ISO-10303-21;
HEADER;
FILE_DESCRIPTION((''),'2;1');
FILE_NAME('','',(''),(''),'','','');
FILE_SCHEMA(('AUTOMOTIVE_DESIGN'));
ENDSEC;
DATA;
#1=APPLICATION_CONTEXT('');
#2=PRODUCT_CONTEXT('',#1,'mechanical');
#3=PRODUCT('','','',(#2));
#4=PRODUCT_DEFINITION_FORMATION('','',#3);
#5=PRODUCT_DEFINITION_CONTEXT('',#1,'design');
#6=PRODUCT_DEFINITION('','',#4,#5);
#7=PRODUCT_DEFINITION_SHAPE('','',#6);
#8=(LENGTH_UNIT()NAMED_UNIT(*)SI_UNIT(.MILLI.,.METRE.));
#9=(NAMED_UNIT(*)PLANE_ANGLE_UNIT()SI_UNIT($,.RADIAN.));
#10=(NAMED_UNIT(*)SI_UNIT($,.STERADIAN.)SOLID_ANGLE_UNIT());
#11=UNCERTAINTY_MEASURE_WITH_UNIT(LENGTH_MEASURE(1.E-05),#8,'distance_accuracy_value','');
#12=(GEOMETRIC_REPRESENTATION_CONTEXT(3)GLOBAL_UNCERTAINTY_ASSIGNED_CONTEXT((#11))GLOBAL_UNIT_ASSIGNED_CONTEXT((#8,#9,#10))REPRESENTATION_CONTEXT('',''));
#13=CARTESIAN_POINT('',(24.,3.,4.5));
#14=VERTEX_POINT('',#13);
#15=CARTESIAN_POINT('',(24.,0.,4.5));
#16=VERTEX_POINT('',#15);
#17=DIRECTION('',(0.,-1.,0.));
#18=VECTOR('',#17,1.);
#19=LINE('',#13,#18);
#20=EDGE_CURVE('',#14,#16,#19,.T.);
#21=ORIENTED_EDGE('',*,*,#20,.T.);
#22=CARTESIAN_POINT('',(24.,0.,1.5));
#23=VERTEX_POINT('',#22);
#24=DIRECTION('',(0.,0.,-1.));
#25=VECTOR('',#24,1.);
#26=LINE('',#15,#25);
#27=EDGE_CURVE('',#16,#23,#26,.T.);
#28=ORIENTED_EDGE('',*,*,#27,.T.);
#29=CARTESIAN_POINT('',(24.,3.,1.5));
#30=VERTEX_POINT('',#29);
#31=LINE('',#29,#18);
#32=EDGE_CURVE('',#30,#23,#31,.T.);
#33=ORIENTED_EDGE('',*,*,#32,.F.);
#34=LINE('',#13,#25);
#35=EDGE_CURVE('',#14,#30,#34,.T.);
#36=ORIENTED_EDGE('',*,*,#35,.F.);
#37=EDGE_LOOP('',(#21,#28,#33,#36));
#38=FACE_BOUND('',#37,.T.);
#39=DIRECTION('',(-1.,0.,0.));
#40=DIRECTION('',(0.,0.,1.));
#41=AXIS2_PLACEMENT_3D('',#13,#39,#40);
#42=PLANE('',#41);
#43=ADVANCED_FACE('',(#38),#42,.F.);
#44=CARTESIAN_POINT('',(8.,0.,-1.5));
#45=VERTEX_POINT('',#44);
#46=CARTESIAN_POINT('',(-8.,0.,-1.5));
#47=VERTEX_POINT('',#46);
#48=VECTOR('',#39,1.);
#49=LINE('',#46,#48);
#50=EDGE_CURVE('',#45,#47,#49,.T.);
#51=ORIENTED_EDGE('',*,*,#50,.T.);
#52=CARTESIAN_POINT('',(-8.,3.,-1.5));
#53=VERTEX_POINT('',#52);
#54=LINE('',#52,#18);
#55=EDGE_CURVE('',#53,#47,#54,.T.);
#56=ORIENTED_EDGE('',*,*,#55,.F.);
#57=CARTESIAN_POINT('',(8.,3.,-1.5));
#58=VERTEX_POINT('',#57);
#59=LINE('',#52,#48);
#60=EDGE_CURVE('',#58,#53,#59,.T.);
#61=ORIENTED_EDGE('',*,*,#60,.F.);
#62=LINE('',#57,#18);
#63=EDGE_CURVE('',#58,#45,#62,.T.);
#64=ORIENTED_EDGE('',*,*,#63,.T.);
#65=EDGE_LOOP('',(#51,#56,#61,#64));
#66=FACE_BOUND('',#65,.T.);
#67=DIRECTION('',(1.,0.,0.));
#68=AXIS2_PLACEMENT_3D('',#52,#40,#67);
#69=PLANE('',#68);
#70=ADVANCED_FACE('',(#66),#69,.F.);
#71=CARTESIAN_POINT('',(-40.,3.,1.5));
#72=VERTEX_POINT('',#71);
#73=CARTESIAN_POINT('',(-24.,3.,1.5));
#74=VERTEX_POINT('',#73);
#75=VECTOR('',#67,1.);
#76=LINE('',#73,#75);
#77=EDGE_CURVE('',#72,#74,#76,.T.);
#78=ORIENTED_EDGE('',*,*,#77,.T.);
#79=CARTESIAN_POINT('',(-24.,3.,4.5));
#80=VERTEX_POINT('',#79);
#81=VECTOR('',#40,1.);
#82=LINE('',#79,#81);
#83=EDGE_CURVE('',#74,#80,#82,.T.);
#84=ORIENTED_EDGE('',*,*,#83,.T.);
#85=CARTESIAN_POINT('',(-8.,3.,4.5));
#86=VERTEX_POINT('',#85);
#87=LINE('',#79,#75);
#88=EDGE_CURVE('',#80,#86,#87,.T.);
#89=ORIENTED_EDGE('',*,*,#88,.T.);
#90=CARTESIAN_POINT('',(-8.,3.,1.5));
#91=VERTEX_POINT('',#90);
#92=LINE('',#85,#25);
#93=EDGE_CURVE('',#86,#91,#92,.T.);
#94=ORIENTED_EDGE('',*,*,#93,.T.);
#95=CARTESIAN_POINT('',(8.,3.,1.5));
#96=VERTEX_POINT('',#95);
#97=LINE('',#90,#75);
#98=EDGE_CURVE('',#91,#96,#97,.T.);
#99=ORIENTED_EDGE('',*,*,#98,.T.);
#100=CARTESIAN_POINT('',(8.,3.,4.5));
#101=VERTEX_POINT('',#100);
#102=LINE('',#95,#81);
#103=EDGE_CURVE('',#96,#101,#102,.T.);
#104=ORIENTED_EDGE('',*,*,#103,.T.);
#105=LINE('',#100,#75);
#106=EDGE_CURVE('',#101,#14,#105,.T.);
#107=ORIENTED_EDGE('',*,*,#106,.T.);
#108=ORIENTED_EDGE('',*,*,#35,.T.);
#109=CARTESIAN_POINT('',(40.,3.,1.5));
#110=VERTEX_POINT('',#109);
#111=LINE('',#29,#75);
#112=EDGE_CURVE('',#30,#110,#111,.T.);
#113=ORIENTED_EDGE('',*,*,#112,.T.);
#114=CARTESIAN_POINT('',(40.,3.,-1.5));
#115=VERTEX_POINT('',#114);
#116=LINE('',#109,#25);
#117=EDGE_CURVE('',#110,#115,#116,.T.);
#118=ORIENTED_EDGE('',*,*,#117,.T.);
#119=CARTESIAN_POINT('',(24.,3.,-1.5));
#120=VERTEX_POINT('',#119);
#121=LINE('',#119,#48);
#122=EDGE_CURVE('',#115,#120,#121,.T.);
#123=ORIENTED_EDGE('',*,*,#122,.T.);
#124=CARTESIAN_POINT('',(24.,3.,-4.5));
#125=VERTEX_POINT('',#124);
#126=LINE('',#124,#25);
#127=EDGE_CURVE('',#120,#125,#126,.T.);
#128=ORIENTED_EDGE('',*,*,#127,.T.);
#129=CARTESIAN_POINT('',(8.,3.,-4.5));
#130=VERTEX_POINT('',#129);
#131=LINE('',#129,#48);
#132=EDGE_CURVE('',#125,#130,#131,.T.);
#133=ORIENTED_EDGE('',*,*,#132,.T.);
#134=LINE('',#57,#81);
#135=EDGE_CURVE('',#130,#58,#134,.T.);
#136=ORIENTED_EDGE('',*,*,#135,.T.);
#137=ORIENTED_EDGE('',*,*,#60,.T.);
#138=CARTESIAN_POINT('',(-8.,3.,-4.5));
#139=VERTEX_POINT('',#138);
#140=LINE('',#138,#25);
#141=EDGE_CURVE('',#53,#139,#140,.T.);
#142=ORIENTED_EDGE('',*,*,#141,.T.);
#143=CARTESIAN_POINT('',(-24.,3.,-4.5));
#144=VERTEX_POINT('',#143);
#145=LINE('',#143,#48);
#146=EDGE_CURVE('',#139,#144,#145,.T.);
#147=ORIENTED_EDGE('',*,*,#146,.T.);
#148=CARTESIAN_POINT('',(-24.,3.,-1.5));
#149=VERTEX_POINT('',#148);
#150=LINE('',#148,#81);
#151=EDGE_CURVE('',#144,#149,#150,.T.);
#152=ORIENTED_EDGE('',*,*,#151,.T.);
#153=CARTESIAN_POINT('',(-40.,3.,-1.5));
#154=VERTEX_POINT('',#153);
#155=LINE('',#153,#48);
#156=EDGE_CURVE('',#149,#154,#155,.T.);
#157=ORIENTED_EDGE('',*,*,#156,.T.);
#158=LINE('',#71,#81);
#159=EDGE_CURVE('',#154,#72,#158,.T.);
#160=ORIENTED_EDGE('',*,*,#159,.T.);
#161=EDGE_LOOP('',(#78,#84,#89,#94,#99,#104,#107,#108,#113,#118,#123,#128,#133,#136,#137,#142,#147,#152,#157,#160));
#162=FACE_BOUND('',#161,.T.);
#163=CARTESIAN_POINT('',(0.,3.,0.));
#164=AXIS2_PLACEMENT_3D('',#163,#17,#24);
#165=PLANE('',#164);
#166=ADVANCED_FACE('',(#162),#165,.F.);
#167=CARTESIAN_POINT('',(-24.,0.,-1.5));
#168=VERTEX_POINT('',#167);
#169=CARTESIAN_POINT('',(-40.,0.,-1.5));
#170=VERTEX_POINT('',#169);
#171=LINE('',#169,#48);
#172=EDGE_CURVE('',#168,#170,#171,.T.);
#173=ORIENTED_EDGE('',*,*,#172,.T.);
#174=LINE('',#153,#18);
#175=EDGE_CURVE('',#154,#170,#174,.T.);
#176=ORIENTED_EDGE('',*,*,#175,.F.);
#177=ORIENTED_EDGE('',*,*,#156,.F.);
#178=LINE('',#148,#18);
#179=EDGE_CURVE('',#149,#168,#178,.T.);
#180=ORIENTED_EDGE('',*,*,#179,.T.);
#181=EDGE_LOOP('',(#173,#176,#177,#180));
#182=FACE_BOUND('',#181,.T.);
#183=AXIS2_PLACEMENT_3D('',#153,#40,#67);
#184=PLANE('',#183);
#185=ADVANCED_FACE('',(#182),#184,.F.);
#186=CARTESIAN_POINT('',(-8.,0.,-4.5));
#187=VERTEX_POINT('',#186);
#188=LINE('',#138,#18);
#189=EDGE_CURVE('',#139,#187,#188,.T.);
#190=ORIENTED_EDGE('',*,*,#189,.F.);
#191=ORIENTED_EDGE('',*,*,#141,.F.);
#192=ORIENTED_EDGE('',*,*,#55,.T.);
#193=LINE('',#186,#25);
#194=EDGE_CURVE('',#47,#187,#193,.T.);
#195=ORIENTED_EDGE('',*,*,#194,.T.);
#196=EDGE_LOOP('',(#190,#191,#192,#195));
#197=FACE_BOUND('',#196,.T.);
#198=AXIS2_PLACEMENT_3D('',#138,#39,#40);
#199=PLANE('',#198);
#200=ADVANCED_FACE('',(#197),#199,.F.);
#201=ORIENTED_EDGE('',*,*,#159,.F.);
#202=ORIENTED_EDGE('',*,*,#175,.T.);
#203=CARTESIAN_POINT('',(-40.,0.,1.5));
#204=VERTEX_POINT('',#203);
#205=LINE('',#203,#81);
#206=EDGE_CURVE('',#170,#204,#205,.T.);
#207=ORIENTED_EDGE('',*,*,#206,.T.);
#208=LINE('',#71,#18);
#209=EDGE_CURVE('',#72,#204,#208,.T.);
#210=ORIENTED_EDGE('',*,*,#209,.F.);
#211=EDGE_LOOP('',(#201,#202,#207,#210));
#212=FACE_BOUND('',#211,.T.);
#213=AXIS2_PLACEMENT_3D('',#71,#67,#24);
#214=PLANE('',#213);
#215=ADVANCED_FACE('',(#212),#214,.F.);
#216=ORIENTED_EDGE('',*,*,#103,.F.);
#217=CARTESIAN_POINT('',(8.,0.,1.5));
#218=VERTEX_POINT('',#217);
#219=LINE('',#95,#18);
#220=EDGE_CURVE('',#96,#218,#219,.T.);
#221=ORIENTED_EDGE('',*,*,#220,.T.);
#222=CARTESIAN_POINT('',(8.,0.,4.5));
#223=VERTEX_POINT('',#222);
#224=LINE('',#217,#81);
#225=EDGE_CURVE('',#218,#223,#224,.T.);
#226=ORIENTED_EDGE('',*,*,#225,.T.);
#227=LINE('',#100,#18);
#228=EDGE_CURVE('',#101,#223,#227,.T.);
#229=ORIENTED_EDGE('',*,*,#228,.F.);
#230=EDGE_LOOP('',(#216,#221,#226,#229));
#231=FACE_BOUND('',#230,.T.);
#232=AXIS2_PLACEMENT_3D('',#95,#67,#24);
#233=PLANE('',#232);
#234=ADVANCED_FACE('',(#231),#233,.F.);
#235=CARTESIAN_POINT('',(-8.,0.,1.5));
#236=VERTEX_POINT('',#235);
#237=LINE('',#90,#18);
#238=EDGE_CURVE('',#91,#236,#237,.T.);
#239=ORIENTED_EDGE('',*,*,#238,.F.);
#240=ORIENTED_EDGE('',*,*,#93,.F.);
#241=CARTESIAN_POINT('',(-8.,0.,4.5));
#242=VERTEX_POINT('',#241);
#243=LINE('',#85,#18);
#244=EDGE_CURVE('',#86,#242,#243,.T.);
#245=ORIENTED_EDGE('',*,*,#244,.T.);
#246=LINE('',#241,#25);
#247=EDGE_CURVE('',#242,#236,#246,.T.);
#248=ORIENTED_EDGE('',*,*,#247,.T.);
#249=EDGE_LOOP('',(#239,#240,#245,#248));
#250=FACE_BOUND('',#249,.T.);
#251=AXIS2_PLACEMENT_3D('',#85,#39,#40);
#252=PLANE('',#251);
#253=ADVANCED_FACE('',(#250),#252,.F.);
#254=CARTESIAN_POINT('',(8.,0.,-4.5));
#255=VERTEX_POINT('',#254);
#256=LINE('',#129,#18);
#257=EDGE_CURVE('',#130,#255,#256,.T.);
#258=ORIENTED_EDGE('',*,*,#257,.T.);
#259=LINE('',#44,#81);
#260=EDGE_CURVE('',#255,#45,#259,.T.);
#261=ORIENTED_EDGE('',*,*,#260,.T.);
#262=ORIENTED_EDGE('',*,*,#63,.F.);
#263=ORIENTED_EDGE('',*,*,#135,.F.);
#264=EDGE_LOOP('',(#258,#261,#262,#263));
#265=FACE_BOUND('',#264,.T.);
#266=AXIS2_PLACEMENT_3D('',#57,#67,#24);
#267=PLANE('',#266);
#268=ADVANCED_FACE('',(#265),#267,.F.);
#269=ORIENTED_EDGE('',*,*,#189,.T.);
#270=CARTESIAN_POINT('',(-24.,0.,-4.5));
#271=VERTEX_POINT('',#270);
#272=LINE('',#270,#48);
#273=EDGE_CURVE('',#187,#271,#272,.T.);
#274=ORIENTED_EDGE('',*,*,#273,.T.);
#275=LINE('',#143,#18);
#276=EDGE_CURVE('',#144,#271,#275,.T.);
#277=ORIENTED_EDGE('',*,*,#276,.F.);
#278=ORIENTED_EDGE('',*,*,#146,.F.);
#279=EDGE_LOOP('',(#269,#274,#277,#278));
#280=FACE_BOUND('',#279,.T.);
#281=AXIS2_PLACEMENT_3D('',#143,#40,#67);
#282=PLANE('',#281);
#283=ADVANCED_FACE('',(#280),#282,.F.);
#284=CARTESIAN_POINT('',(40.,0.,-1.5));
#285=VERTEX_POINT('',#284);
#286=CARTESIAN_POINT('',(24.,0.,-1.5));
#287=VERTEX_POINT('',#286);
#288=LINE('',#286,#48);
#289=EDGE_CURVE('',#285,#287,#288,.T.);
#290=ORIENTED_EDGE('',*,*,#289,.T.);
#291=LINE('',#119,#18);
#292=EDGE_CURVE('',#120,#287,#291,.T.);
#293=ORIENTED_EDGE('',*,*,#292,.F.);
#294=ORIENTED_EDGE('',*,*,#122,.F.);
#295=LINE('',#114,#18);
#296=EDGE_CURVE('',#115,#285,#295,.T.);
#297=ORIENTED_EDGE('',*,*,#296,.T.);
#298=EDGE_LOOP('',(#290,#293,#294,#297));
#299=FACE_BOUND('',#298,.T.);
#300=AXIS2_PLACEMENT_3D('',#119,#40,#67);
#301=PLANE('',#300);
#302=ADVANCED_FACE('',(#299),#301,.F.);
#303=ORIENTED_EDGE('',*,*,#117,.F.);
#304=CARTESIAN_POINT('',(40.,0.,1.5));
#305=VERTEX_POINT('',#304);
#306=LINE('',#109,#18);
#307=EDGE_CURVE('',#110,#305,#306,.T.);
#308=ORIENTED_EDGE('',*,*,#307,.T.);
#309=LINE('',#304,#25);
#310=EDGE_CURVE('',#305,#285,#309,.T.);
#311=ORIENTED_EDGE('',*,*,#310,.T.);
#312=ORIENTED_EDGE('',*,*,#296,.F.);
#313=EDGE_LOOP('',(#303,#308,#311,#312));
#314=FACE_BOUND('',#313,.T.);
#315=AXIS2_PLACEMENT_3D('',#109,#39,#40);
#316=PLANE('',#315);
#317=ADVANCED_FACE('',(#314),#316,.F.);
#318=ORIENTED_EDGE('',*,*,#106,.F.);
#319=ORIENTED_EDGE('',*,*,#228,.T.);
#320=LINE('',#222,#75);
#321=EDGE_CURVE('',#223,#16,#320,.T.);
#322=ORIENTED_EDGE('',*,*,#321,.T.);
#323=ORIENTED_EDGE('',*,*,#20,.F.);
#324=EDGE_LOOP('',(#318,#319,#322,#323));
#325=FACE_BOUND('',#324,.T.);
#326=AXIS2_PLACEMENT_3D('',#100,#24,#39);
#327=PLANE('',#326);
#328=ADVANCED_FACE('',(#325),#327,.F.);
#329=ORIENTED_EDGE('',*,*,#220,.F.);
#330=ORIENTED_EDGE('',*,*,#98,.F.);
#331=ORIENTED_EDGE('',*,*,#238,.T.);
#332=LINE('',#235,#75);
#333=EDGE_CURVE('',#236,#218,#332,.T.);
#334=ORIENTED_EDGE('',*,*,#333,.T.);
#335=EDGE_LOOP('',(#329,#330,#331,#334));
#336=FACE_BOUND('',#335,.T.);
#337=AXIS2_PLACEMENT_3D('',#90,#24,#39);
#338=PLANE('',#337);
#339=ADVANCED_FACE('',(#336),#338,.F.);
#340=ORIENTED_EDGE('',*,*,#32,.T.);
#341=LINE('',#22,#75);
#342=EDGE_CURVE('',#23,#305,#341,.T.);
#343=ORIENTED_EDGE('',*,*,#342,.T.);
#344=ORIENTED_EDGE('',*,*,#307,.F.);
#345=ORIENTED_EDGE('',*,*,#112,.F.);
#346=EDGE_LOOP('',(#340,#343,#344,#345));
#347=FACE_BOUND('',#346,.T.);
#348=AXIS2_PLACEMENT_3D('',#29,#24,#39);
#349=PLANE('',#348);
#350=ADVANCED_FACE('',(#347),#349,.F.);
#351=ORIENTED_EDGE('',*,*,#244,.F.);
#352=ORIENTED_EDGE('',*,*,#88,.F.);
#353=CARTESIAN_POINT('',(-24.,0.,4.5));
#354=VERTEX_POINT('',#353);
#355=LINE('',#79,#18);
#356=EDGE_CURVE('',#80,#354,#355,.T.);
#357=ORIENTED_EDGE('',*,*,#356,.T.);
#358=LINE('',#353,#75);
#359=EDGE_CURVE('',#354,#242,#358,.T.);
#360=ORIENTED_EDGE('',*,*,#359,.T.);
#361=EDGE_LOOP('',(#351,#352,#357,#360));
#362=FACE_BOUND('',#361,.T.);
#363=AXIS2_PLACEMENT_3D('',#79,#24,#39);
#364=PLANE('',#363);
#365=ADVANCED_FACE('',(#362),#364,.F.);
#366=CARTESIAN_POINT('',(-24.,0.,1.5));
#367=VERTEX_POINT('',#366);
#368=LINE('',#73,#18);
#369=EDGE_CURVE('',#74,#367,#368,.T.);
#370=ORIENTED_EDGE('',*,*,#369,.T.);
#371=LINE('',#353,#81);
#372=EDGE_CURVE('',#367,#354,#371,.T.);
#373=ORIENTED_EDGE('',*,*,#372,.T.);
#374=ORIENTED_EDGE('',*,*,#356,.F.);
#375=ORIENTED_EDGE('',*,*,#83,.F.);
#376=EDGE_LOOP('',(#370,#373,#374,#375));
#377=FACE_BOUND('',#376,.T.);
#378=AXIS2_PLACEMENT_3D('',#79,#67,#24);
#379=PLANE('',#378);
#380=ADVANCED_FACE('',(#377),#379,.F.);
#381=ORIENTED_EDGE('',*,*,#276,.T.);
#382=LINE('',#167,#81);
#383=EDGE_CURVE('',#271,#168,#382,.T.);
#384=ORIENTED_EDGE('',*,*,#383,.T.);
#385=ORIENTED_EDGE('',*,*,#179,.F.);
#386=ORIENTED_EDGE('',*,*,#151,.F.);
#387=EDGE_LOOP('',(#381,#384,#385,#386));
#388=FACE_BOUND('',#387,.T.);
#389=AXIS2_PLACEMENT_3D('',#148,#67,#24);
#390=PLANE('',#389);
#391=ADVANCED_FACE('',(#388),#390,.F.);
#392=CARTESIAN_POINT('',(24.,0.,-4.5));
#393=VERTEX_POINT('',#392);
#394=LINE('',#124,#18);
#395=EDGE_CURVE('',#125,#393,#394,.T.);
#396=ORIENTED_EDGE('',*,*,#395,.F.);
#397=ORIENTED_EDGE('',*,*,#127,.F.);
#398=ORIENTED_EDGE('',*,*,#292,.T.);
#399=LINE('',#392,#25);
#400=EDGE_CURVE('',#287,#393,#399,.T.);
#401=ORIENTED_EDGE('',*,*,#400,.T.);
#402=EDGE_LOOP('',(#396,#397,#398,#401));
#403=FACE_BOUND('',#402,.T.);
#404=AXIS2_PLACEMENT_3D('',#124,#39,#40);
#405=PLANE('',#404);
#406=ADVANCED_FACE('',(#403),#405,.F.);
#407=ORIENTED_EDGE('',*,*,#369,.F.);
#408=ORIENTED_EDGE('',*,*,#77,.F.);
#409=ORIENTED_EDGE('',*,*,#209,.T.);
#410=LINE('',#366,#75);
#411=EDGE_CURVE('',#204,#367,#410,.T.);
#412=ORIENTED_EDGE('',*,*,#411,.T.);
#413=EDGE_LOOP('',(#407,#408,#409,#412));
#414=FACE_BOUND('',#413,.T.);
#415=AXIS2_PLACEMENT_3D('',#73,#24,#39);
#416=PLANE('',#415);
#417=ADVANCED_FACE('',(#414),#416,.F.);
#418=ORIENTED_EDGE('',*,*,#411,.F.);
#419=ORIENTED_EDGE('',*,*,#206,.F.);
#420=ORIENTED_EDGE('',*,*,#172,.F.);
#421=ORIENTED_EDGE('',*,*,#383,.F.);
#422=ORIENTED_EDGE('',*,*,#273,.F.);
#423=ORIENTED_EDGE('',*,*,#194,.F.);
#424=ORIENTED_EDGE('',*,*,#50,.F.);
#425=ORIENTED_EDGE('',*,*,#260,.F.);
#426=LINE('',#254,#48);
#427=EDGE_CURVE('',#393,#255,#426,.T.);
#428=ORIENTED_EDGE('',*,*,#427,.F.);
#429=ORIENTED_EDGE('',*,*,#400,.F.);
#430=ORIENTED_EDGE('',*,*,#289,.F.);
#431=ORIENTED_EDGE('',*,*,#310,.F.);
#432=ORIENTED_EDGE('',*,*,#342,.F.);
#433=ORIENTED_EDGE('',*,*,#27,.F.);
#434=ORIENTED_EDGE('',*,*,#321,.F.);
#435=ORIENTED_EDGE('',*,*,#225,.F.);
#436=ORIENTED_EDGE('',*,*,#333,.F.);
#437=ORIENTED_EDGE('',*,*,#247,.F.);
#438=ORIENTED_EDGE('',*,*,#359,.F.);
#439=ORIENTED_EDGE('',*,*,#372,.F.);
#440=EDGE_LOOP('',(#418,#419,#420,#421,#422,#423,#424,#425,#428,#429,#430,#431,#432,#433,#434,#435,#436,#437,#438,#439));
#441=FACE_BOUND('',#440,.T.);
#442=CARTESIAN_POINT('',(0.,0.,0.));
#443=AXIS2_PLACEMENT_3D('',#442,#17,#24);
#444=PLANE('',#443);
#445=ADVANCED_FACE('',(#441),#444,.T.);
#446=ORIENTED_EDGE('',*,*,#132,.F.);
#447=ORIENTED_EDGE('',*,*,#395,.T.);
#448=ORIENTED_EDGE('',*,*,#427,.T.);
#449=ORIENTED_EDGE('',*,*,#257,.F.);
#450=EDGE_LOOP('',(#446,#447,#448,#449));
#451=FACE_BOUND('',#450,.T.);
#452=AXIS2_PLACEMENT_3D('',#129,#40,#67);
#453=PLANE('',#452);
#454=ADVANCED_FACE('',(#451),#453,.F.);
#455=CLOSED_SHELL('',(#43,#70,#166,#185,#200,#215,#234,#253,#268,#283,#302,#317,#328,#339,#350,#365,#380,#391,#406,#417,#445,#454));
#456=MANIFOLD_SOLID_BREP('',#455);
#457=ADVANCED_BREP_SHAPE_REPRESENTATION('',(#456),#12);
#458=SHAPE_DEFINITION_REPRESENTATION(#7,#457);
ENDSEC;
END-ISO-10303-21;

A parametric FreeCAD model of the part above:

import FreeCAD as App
import Part
import Sketcher

V = App.Vector


def add_polygon(sketch, points):
    """Adds a closed chain of lines whose ends are joined by coincident constraints."""
    first, n = sketch.GeometryCount, len(points)
    for a, b in zip(points, points[1:] + points[:1]):
        sketch.addGeometry(Part.LineSegment(App.Vector(*a, 0), App.Vector(*b, 0)), False)
    for i in range(n):
        sketch.addConstraint(Sketcher.Constraint("Coincident", first + i, 2, first + (i + 1) % n, 1))

doc = App.newDocument("Part")
body = doc.addObject("PartDesign::Body", "Body")

# Sketch on XZ plane
sketch1 = body.newObject("Sketcher::SketchObject", "Sketch")
sketch1.AttachmentSupport = (doc.getObject("XZ_Plane"), [""])
sketch1.MapMode = "FlatFace"
add_polygon(sketch1, [(-24, 4.5), (-8, 4.5), (-8, 1.5), (8, 1.5), (8, 4.5), (24, 4.5), (24, 1.5), (40, 1.5), (40, -1.5), (24, -1.5), (24, -4.5), (8, -4.5), (8, -1.5), (-8, -1.5), (-8, -4.5), (-24, -4.5), (-24, -1.5), (-40, -1.5), (-40, 1.5), (-24, 1.5)])  # lines 0-19
sketch1.addConstraint(Sketcher.Constraint("Horizontal", 0))
sketch1.addConstraint(Sketcher.Constraint("Vertical", 1))
sketch1.addConstraint(Sketcher.Constraint("Horizontal", 2))
sketch1.addConstraint(Sketcher.Constraint("Vertical", 3))
sketch1.addConstraint(Sketcher.Constraint("Horizontal", 4))
sketch1.addConstraint(Sketcher.Constraint("Vertical", 5))
sketch1.addConstraint(Sketcher.Constraint("Horizontal", 6))
sketch1.addConstraint(Sketcher.Constraint("Vertical", 7))
sketch1.addConstraint(Sketcher.Constraint("Horizontal", 8))
sketch1.addConstraint(Sketcher.Constraint("Vertical", 9))
sketch1.addConstraint(Sketcher.Constraint("Horizontal", 10))
sketch1.addConstraint(Sketcher.Constraint("Vertical", 11))
sketch1.addConstraint(Sketcher.Constraint("Horizontal", 12))
sketch1.addConstraint(Sketcher.Constraint("Vertical", 13))
sketch1.addConstraint(Sketcher.Constraint("Horizontal", 14))
sketch1.addConstraint(Sketcher.Constraint("Vertical", 15))
sketch1.addConstraint(Sketcher.Constraint("Horizontal", 16))
sketch1.addConstraint(Sketcher.Constraint("Vertical", 17))
sketch1.addConstraint(Sketcher.Constraint("Horizontal", 18))
sketch1.addConstraint(Sketcher.Constraint("Vertical", 19))
sketch1.addConstraint(Sketcher.Constraint("Symmetric", 0, 2, 10, 2, -1, 1))
sketch1.addConstraint(Sketcher.Constraint("Symmetric", 2, 2, 12, 2, -1, 1))
sketch1.addConstraint(Sketcher.Constraint("Symmetric", 4, 2, 14, 2, -1, 1))
sketch1.addConstraint(Sketcher.Constraint("Symmetric", 6, 2, 16, 2, -1, 1))
sketch1.addConstraint(Sketcher.Constraint("Symmetric", 8, 2, 18, 2, -1, 1))
sketch1.addConstraint(Sketcher.Constraint("Symmetric", 0, 2, 3, 2, -2))
sketch1.addConstraint(Sketcher.Constraint("Symmetric", 8, 2, 15, 2, -2))
sketch1.addConstraint(Sketcher.Constraint("Horizontal", 2, 2, 5, 2))
sketch1.addConstraint(Sketcher.Constraint("Equal", 0, 2))
sketch1.addConstraint(Sketcher.Constraint("Equal", 4, 6))
sketch1.addConstraint(Sketcher.Constraint("Equal", 5, 7))
sketch1.addConstraint(Sketcher.Constraint("DistanceX", 0, 1, 0, 2, 16.0))
sketch1.addConstraint(Sketcher.Constraint("DistanceY", 1, 2, 1, 1, 3.0))
pad1 = body.newObject("PartDesign::Pad", "Pad")
pad1.Profile = sketch1
pad1.Length = 3
pad1.Reversed = True

doc.recompute()
